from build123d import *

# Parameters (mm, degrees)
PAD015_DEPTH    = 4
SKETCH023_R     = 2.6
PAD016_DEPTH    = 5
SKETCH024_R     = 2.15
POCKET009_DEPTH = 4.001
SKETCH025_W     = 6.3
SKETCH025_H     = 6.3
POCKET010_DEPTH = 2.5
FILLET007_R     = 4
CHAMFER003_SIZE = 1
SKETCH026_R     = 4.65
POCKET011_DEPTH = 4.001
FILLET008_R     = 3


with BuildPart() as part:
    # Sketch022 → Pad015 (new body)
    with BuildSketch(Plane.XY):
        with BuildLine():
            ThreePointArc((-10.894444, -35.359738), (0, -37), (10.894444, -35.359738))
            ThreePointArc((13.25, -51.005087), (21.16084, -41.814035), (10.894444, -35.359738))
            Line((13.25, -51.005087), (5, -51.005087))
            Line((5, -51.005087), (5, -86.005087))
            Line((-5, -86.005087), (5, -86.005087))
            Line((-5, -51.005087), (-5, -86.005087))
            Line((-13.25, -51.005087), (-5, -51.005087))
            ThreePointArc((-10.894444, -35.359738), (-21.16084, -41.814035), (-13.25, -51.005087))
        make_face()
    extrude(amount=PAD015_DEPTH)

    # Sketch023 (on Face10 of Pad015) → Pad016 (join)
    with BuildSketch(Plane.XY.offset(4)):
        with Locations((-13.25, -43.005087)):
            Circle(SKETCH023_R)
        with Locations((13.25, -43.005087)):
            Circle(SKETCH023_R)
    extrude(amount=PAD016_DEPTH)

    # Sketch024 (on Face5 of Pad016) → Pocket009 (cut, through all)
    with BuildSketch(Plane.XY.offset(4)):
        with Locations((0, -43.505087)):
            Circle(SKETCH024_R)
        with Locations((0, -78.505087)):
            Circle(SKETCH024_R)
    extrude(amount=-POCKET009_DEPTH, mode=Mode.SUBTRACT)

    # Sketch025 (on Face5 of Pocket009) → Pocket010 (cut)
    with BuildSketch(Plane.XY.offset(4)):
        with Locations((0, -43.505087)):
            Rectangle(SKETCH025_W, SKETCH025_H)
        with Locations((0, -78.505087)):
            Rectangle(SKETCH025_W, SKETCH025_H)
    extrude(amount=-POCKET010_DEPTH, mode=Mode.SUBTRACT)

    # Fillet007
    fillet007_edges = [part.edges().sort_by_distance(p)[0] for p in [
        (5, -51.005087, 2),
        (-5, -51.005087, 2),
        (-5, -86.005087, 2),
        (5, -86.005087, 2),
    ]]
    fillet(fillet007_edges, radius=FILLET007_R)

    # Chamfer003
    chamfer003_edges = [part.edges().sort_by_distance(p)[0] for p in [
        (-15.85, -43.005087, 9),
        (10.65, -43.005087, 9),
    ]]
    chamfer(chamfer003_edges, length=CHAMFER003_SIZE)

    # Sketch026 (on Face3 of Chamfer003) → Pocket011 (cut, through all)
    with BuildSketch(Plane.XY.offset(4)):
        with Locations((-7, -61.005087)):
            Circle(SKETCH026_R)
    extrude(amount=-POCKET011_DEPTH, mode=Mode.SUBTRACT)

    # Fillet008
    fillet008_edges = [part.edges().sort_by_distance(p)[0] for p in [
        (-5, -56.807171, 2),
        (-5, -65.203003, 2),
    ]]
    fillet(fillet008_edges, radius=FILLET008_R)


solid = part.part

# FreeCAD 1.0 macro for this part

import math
import FreeCAD as App
import Part
import Sketcher
Q = App.Units.Quantity


def edges_at(feature, points):
    """Names of the edges that pass closest to the given points."""
    edges = feature.Shape.Edges
    near = lambda p: min(range(len(edges)), key=lambda i: edges[i].distToShape(Part.Vertex(*p))[0])
    return sorted({f"Edge{near(p) + 1}" for p in points})

doc = App.newDocument("Part")
body = doc.addObject("PartDesign::Body", "Body")

sketch1 = body.newObject("Sketcher::SketchObject", "Sketch")
sketch1.AttachmentSupport = (doc.getObject("XY_Plane"), [""])
sketch1.MapMode = "FlatFace"
sketch1.addGeometry([
    Part.ArcOfCircle(Part.Circle(App.Vector(0, 0, 0), App.Vector(0, 0, 1), 37), math.radians(-107), math.radians(-73)),
    Part.ArcOfCircle(Part.Circle(App.Vector(-13, -43, 0), App.Vector(0, 0, 1), 8), math.radians(73), math.radians(270)),
    Part.LineSegment(App.Vector(-13, -51, 0), App.Vector(-5, -51, 0)),
    Part.LineSegment(App.Vector(-5, -51, 0), App.Vector(-5, -86, 0)),
    Part.LineSegment(App.Vector(-5, -86, 0), App.Vector(5, -86, 0)),
    Part.LineSegment(App.Vector(5, -86, 0), App.Vector(5, -51, 0)),
    Part.LineSegment(App.Vector(5, -51, 0), App.Vector(13, -51, 0)),
    Part.ArcOfCircle(Part.Circle(App.Vector(13, -43, 0), App.Vector(0, 0, 1), 8), math.radians(-90), math.radians(107)),
], False)
sketch1.addConstraint([
    Sketcher.Constraint("Tangent", 0, 1, 1, 1),
    Sketcher.Constraint("Tangent", 1, 2, 2, 1),
    Sketcher.Constraint("Coincident", 2, 2, 3, 1),
    Sketcher.Constraint("Coincident", 3, 2, 4, 1),
    Sketcher.Constraint("Coincident", 4, 2, 5, 1),
    Sketcher.Constraint("Coincident", 5, 2, 6, 1),
    Sketcher.Constraint("Tangent", 6, 2, 7, 1),
    Sketcher.Constraint("Tangent", 7, 2, 0, 2),
    Sketcher.Constraint("Horizontal", 2),
    Sketcher.Constraint("Vertical", 3),
    Sketcher.Constraint("Horizontal", 4),
    Sketcher.Constraint("Vertical", 5),
    Sketcher.Constraint("Horizontal", 6),
    Sketcher.Constraint("Coincident", 0, 3, -1, 1),
    Sketcher.Constraint("Equal", 1, 7),
    Sketcher.Constraint("Symmetric", 2, 2, 5, 2, -2),
    Sketcher.Constraint("Radius", 1, Q("8 mm")),
    Sketcher.Constraint("DistanceX", 4, 1, 4, 2, Q("10 mm")),
    Sketcher.Constraint("DistanceY", 3, 2, 3, 1, Q("35 mm")),
    Sketcher.Constraint("DistanceX", 2, 1, 2, 2, Q("8.25 mm")),
    Sketcher.Constraint("Radius", 0, Q("36.999994 mm")),
])
pad1 = body.newObject("PartDesign::Pad", "Pad")
pad1.Profile = sketch1
pad1.Length = 4

sketch2 = body.newObject("Sketcher::SketchObject", "Sketch001")
sketch2.AttachmentSupport = (doc.getObject("XY_Plane"), [""])
sketch2.MapMode = "FlatFace"
sketch2.AttachmentOffset = App.Placement(App.Vector(0, 0, 4), App.Rotation())
sketch2.addGeometry([
    Part.Circle(App.Vector(-13.2, -43, 0), App.Vector(0, 0, 1), 2.6),
    Part.Circle(App.Vector(13.2, -43, 0), App.Vector(0, 0, 1), 2.6),
], False)
sketch2.addConstraint([
    Sketcher.Constraint("Equal", 0, 1),
    Sketcher.Constraint("Symmetric", 0, 3, 1, 3, -2),
    Sketcher.Constraint("Diameter", 0, Q("5.2 mm")),
    Sketcher.Constraint("DistanceX", 0, 3, 1, 3, Q("26.5 mm")),
    Sketcher.Constraint("DistanceY", 0, 3, -1, 1, Q("43.005087 mm")),
])
pad2 = body.newObject("PartDesign::Pad", "Pad001")
pad2.Profile = sketch2
pad2.Length = 5

sketch3 = body.newObject("Sketcher::SketchObject", "Sketch002")
sketch3.AttachmentSupport = (doc.getObject("XY_Plane"), [""])
sketch3.MapMode = "FlatFace"
sketch3.AttachmentOffset = App.Placement(App.Vector(0, 0, 4), App.Rotation())
sketch3.addGeometry([
    Part.Circle(App.Vector(0, -43.5, 0), App.Vector(0, 0, 1), 2.1),
    Part.Circle(App.Vector(0, -78.5, 0), App.Vector(0, 0, 1), 2.1),
], False)
sketch3.addConstraint([
    Sketcher.Constraint("Equal", 0, 1),
    Sketcher.Constraint("PointOnObject", 0, 3, -2),
    Sketcher.Constraint("PointOnObject", 1, 3, -2),
    Sketcher.Constraint("Diameter", 0, Q("4.3 mm")),
    Sketcher.Constraint("DistanceY", 1, 3, 0, 3, Q("35 mm")),
    Sketcher.Constraint("DistanceY", 0, 3, -1, 1, Q("43.505087 mm")),
])
pocket1 = body.newObject("PartDesign::Pocket", "Pocket")
pocket1.Profile = sketch3
pocket1.Type = "ThroughAll"

sketch4 = body.newObject("Sketcher::SketchObject", "Sketch003")
sketch4.AttachmentSupport = (doc.getObject("XY_Plane"), [""])
sketch4.MapMode = "FlatFace"
sketch4.AttachmentOffset = App.Placement(App.Vector(0, 0, 4), App.Rotation())
sketch4.addGeometry([
    Part.LineSegment(App.Vector(-3, -40, 0), App.Vector(-3, -47, 0)),
    Part.LineSegment(App.Vector(-3, -47, 0), App.Vector(3, -47, 0)),
    Part.LineSegment(App.Vector(3, -47, 0), App.Vector(3, -40, 0)),
    Part.LineSegment(App.Vector(3, -40, 0), App.Vector(-3, -40, 0)),
    Part.LineSegment(App.Vector(-3, -75, 0), App.Vector(-3, -82, 0)),
    Part.LineSegment(App.Vector(-3, -82, 0), App.Vector(3, -82, 0)),
    Part.LineSegment(App.Vector(3, -82, 0), App.Vector(3, -75, 0)),
    Part.LineSegment(App.Vector(3, -75, 0), App.Vector(-3, -75, 0)),
], False)
sketch4.addConstraint([
    Sketcher.Constraint("Coincident", 0, 2, 1, 1),
    Sketcher.Constraint("Coincident", 1, 2, 2, 1),
    Sketcher.Constraint("Coincident", 2, 2, 3, 1),
    Sketcher.Constraint("Coincident", 3, 2, 0, 1),
    Sketcher.Constraint("Coincident", 4, 2, 5, 1),
    Sketcher.Constraint("Coincident", 5, 2, 6, 1),
    Sketcher.Constraint("Coincident", 6, 2, 7, 1),
    Sketcher.Constraint("Coincident", 7, 2, 4, 1),
    Sketcher.Constraint("Vertical", 0),
    Sketcher.Constraint("Horizontal", 1),
    Sketcher.Constraint("Vertical", 2),
    Sketcher.Constraint("Horizontal", 3),
    Sketcher.Constraint("Vertical", 4),
    Sketcher.Constraint("Horizontal", 5),
    Sketcher.Constraint("Vertical", 6),
    Sketcher.Constraint("Horizontal", 7),
    Sketcher.Constraint("Vertical", 3, 2, 4, 2),
    Sketcher.Constraint("Vertical", 2, 2, 5, 2),
    Sketcher.Constraint("Equal", 7, 0),
    Sketcher.Constraint("Equal", 2, 4),
    Sketcher.Constraint("DistanceX", 1, 1, 1, 2, Q("6.3 mm")),
    Sketcher.Constraint("DistanceY", 4, 2, 0, 2, Q("35 mm")),
    Sketcher.Constraint("DistanceX", 0, 2, -1, 1, Q("3.15 mm")),
    Sketcher.Constraint("DistanceY", 0, 2, -1, 1, Q("46.655087 mm")),
])
pocket2 = body.newObject("PartDesign::Pocket", "Pocket001")
pocket2.Profile = sketch4
pocket2.Length = 2.5
doc.recompute()

fillet = body.newObject("PartDesign::Fillet", "Fillet")
fillet.Base = (pocket2, edges_at(pocket2, [
    (5, -51.005, 2),
    (-5, -51.005, 2),
    (-5, -86.005, 2),
    (5, -86.005, 2),
]))
fillet.Radius = 4
doc.recompute()

chamfer = body.newObject("PartDesign::Chamfer", "Chamfer")
chamfer.Base = (fillet, edges_at(fillet, [(-15.85, -43.005, 9), (10.65, -43.005, 9)]))
chamfer.Size = 1

sketch5 = body.newObject("Sketcher::SketchObject", "Sketch004")
sketch5.AttachmentSupport = (doc.getObject("XY_Plane"), [""])
sketch5.MapMode = "FlatFace"
sketch5.AttachmentOffset = App.Placement(App.Vector(0, 0, 4), App.Rotation())
sketch5.addGeometry(Part.Circle(App.Vector(-7, -61, 0), App.Vector(0, 0, 1), 4.7), False)
sketch5.addConstraint([
    Sketcher.Constraint("Diameter", 0, Q("9.3 mm")),
    Sketcher.Constraint("DistanceX", 0, 3, -1, 1, Q("7 mm")),
    Sketcher.Constraint("DistanceY", 0, 3, -1, 1, Q("61.005087 mm")),
])
pocket3 = body.newObject("PartDesign::Pocket", "Pocket002")
pocket3.Profile = sketch5
pocket3.Type = "ThroughAll"
doc.recompute()

fillet2 = body.newObject("PartDesign::Fillet", "Fillet001")
fillet2.Base = (pocket3, edges_at(pocket3, [(-5, -56.807, 2), (-5, -65.203, 2)]))
fillet2.Radius = 3

doc.recompute()
